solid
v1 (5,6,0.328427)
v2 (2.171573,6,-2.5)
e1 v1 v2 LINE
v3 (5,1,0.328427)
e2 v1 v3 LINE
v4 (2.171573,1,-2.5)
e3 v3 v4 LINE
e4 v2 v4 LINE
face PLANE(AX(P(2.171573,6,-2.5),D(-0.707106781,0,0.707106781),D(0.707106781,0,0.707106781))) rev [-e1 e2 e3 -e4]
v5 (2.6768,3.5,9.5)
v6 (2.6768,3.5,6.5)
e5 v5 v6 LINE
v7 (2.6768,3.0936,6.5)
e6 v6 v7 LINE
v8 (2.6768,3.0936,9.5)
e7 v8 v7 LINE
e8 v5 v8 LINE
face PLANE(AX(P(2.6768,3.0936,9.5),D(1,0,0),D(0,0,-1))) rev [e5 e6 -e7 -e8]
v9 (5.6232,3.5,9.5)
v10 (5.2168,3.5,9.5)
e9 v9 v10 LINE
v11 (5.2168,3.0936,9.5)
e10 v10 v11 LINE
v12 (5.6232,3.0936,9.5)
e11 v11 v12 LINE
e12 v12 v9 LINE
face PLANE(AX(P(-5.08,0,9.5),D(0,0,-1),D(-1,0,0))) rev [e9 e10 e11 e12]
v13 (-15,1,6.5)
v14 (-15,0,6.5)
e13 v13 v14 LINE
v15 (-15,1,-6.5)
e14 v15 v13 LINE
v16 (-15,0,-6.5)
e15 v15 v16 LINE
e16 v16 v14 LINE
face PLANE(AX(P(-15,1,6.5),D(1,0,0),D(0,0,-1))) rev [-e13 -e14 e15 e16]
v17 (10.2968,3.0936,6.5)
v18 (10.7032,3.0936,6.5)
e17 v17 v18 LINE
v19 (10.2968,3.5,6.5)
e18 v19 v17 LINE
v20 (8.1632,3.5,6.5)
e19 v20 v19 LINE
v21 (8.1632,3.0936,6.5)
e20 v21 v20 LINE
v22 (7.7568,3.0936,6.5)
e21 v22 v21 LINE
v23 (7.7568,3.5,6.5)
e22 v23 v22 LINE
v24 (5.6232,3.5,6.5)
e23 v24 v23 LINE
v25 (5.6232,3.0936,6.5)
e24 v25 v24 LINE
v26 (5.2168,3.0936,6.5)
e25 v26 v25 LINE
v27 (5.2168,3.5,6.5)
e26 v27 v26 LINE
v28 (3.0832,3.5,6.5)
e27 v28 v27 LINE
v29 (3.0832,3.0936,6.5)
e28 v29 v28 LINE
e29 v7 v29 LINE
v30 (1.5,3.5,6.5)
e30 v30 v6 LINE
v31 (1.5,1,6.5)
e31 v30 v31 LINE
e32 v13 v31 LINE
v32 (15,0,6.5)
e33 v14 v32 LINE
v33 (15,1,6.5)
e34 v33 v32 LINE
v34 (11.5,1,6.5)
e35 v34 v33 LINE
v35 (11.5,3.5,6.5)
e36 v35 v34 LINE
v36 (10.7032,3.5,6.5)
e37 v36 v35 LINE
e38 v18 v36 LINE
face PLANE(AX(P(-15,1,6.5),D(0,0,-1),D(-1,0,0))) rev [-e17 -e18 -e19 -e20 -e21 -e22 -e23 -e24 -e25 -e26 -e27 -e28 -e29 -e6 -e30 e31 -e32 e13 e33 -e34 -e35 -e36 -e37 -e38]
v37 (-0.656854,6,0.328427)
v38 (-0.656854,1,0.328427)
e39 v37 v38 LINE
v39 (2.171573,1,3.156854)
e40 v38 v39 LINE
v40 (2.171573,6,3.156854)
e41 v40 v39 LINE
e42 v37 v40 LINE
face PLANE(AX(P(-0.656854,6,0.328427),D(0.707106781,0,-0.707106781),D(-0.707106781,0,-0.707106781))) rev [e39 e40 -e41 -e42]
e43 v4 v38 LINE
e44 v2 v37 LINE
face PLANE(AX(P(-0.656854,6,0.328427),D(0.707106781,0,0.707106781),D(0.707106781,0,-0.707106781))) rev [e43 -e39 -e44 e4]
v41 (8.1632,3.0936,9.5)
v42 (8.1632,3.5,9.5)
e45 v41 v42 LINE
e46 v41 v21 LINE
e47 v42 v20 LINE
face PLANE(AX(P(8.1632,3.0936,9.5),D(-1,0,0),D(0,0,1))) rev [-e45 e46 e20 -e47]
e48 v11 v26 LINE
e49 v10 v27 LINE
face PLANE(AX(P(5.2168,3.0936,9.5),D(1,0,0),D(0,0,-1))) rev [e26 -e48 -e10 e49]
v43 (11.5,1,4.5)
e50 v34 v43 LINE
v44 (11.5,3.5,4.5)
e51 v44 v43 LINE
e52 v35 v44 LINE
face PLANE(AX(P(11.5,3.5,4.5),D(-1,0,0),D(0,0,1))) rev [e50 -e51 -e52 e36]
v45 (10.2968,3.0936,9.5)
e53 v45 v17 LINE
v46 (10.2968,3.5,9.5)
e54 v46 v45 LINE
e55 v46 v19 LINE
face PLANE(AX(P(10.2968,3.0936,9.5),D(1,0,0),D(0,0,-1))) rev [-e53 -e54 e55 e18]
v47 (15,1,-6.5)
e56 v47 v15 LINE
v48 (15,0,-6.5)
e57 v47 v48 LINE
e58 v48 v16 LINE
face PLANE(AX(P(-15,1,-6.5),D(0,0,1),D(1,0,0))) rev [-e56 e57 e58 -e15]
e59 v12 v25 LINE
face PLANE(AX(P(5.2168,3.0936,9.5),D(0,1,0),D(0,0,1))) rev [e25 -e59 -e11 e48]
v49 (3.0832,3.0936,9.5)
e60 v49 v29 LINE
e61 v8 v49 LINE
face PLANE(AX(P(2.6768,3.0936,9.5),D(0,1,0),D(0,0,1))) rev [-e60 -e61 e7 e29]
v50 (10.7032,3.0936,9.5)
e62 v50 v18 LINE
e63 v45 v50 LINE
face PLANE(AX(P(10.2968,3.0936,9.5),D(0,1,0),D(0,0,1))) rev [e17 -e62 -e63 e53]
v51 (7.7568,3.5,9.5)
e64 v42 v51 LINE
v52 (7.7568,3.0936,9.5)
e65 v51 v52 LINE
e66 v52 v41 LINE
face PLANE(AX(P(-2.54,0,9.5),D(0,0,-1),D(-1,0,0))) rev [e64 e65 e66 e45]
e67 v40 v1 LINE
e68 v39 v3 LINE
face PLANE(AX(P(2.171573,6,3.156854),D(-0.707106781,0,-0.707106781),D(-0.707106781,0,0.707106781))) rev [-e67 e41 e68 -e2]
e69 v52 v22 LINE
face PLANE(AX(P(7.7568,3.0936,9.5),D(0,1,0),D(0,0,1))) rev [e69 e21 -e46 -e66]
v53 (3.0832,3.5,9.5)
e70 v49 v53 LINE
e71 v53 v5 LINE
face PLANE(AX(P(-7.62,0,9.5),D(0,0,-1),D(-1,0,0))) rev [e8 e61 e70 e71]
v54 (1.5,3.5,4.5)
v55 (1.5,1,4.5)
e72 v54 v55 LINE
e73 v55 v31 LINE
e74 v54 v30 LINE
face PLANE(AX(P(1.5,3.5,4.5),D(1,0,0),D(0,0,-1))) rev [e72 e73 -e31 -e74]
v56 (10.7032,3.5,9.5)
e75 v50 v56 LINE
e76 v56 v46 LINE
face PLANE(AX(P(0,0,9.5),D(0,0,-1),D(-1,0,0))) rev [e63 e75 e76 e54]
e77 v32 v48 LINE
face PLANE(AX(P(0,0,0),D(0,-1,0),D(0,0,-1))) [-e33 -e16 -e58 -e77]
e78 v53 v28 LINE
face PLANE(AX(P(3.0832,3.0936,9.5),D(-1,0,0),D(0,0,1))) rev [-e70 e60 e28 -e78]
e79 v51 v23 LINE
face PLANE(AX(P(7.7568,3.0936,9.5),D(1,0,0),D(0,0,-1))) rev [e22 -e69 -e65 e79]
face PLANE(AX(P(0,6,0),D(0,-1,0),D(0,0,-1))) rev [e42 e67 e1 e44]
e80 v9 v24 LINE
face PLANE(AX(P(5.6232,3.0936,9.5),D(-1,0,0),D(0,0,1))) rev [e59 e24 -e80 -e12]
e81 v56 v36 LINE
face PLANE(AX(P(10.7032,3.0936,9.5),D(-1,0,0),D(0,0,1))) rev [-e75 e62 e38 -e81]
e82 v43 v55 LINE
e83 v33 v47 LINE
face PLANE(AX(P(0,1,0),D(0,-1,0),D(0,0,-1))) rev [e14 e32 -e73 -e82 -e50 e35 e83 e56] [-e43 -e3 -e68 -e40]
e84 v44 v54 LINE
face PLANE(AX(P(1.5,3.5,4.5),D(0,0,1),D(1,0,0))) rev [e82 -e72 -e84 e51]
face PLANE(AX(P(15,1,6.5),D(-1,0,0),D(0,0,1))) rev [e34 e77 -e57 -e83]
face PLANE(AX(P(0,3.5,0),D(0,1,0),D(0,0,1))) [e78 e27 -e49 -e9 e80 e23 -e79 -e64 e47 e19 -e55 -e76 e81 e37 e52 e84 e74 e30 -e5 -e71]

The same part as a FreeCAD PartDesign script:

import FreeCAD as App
import Part
import Sketcher
from FreeCAD import Vector

doc = App.newDocument("Part")
body = doc.addObject("PartDesign::Body", "Body")

sketch1 = body.newObject("Sketcher::SketchObject", "Sketch")
sketch1.AttachmentSupport = (doc.getObject("XZ_Plane"), [""])
sketch1.MapMode = "FlatFace"
sketch1.addGeometry([
    Part.LineSegment(Vector(-15, -6, 0), Vector(-15, 6, 0)),
    Part.LineSegment(Vector(-15, 6, 0), Vector(15, 6, 0)),
    Part.LineSegment(Vector(15, 6, 0), Vector(15, -6, 0)),
    Part.LineSegment(Vector(15, -6, 0), Vector(-15, -6, 0)),
], False)
sketch1.addConstraint([
    Sketcher.Constraint("Coincident", 0, 2, 1, 1),
    Sketcher.Constraint("Coincident", 1, 2, 2, 1),
    Sketcher.Constraint("Coincident", 2, 2, 3, 1),
    Sketcher.Constraint("Coincident", 3, 2, 0, 1),
    Sketcher.Constraint("Vertical", 0),
    Sketcher.Constraint("Horizontal", 1),
    Sketcher.Constraint("Vertical", 2),
    Sketcher.Constraint("Horizontal", 3),
    Sketcher.Constraint("Symmetric", 0, 2, 2, 2, -1, 1),
    Sketcher.Constraint("DistanceX", 1, 1, 1, 2, 30.0),
    Sketcher.Constraint("DistanceY", 0, 1, 0, 2, 13.0),
])
pad1 = body.newObject("PartDesign::Pad", "Pad")
pad1.Profile = sketch1
pad1.Length = 1
pad1.Reversed = True

sketch2 = body.newObject("Sketcher::SketchObject", "Sketch001")
sketch2.AttachmentSupport = (doc.getObject("XZ_Plane"), [""])
sketch2.MapMode = "FlatFace"
sketch2.AttachmentOffset = App.Placement(Vector(0, 0, -1), App.Rotation())
sketch2.addGeometry([
    Part.LineSegment(Vector(1.5, 4.5, 0), Vector(1.5, 6.5, 0)),
    Part.LineSegment(Vector(1.5, 6.5, 0), Vector(11.5, 6.5, 0)),
    Part.LineSegment(Vector(11.5, 6.5, 0), Vector(11.5, 4.5, 0)),
    Part.LineSegment(Vector(11.5, 4.5, 0), Vector(1.5, 4.5, 0)),
], False)
sketch2.addConstraint([
    Sketcher.Constraint("Coincident", 0, 2, 1, 1),
    Sketcher.Constraint("Coincident", 1, 2, 2, 1),
    Sketcher.Constraint("Coincident", 2, 2, 3, 1),
    Sketcher.Constraint("Coincident", 3, 2, 0, 1),
    Sketcher.Constraint("Vertical", 0),
    Sketcher.Constraint("Horizontal", 1),
    Sketcher.Constraint("Vertical", 2),
    Sketcher.Constraint("Horizontal", 3),
    Sketcher.Constraint("DistanceX", 1, 1, 1, 2, 10.0),
    Sketcher.Constraint("DistanceY", 0, 1, 0, 2, 2.0),
    Sketcher.Constraint("DistanceX", -1, 1, 0, 2, 1.5),
    Sketcher.Constraint("DistanceY", -1, 1, 0, 2, 6.5),
])
pad2 = body.newObject("PartDesign::Pad", "Pad001")
pad2.Profile = sketch2
pad2.Length = 2.5
pad2.Reversed = True

sketch3 = body.newObject("Sketcher::SketchObject", "Sketch002")
sketch3.AttachmentSupport = (doc.getObject("XY_Plane"), [""])
sketch3.MapMode = "FlatFace"
sketch3.AttachmentOffset = App.Placement(Vector(0, 0, 6.5), App.Rotation())
sketch3.addGeometry([
    Part.LineSegment(Vector(10.3, 3.5, 0), Vector(10.3, 3.09, 0)),
    Part.LineSegment(Vector(10.3, 3.09, 0), Vector(10.7, 3.09, 0)),
    Part.LineSegment(Vector(10.7, 3.09, 0), Vector(10.7, 3.5, 0)),
    Part.LineSegment(Vector(10.7, 3.5, 0), Vector(10.3, 3.5, 0)),
], False)
sketch3.addConstraint([
    Sketcher.Constraint("Coincident", 0, 2, 1, 1),
    Sketcher.Constraint("Coincident", 1, 2, 2, 1),
    Sketcher.Constraint("Coincident", 2, 2, 3, 1),
    Sketcher.Constraint("Coincident", 3, 2, 0, 1),
    Sketcher.Constraint("Vertical", 0),
    Sketcher.Constraint("Horizontal", 1),
    Sketcher.Constraint("Vertical", 2),
    Sketcher.Constraint("Horizontal", 3),
    Sketcher.Constraint("Equal", 3, 0),
    Sketcher.Constraint("DistanceY", -1, 1, 2, 2, 3.5),
    Sketcher.Constraint("DistanceX", 1, 1, 1, 2, 0.4064),
    Sketcher.Constraint("DistanceX", -1, 1, 0, 2, 10.2968),
])
pad3 = body.newObject("PartDesign::Pad", "Pad002")
pad3.Profile = sketch3
pad3.Length = 3
doc.recompute()

linearpattern = body.newObject("PartDesign::LinearPattern", "LinearPattern")
linearpattern.Originals = [pad3]
linearpattern.Direction = (doc.getObject("X_Axis"), [""])
linearpattern.Mode = "offset"
linearpattern.Offset = 2.54
linearpattern.Occurrences = 4
linearpattern.Reversed = True
body.Tip = linearpattern

sketch4 = body.newObject("Sketcher::SketchObject", "Sketch003")
sketch4.AttachmentSupport = (doc.getObject("XZ_Plane"), [""])
sketch4.MapMode = "FlatFace"
sketch4.AttachmentOffset = App.Placement(Vector(0, 0, -1), App.Rotation())
sketch4.addGeometry([
    Part.LineSegment(Vector(-0.7, 0.3, 0), Vector(2.2, 3.2, 0)),
    Part.LineSegment(Vector(2.2, 3.2, 0), Vector(5, 0.3, 0)),
    Part.LineSegment(Vector(5, 0.3, 0), Vector(2.2, -2.5, 0)),
    Part.LineSegment(Vector(2.2, -2.5, 0), Vector(-0.7, 0.3, 0)),
], False)
sketch4.addConstraint([
    Sketcher.Constraint("Coincident", 0, 2, 1, 1),
    Sketcher.Constraint("Coincident", 1, 2, 2, 1),
    Sketcher.Constraint("Coincident", 2, 2, 3, 1),
    Sketcher.Constraint("Coincident", 3, 2, 0, 1),
    Sketcher.Constraint("Perpendicular", 0, 1),
    Sketcher.Constraint("Perpendicular", 1, 2),
    Sketcher.Constraint("Perpendicular", 2, 3),
    Sketcher.Constraint("Horizontal", 1, 2, 3, 2),
    Sketcher.Constraint("Vertical", 0, 2, 2, 2),
    Sketcher.Constraint("Distance", 0, 4.0),
    Sketcher.Constraint("DistanceX", -1, 1, 1, 2, 5.0),
    Sketcher.Constraint("DistanceY", 2, 2, -1, 1, 2.5),
])
pad4 = body.newObject("PartDesign::Pad", "Pad003")
pad4.Profile = sketch4
pad4.Length = 5
pad4.Reversed = True

doc.recompute()
